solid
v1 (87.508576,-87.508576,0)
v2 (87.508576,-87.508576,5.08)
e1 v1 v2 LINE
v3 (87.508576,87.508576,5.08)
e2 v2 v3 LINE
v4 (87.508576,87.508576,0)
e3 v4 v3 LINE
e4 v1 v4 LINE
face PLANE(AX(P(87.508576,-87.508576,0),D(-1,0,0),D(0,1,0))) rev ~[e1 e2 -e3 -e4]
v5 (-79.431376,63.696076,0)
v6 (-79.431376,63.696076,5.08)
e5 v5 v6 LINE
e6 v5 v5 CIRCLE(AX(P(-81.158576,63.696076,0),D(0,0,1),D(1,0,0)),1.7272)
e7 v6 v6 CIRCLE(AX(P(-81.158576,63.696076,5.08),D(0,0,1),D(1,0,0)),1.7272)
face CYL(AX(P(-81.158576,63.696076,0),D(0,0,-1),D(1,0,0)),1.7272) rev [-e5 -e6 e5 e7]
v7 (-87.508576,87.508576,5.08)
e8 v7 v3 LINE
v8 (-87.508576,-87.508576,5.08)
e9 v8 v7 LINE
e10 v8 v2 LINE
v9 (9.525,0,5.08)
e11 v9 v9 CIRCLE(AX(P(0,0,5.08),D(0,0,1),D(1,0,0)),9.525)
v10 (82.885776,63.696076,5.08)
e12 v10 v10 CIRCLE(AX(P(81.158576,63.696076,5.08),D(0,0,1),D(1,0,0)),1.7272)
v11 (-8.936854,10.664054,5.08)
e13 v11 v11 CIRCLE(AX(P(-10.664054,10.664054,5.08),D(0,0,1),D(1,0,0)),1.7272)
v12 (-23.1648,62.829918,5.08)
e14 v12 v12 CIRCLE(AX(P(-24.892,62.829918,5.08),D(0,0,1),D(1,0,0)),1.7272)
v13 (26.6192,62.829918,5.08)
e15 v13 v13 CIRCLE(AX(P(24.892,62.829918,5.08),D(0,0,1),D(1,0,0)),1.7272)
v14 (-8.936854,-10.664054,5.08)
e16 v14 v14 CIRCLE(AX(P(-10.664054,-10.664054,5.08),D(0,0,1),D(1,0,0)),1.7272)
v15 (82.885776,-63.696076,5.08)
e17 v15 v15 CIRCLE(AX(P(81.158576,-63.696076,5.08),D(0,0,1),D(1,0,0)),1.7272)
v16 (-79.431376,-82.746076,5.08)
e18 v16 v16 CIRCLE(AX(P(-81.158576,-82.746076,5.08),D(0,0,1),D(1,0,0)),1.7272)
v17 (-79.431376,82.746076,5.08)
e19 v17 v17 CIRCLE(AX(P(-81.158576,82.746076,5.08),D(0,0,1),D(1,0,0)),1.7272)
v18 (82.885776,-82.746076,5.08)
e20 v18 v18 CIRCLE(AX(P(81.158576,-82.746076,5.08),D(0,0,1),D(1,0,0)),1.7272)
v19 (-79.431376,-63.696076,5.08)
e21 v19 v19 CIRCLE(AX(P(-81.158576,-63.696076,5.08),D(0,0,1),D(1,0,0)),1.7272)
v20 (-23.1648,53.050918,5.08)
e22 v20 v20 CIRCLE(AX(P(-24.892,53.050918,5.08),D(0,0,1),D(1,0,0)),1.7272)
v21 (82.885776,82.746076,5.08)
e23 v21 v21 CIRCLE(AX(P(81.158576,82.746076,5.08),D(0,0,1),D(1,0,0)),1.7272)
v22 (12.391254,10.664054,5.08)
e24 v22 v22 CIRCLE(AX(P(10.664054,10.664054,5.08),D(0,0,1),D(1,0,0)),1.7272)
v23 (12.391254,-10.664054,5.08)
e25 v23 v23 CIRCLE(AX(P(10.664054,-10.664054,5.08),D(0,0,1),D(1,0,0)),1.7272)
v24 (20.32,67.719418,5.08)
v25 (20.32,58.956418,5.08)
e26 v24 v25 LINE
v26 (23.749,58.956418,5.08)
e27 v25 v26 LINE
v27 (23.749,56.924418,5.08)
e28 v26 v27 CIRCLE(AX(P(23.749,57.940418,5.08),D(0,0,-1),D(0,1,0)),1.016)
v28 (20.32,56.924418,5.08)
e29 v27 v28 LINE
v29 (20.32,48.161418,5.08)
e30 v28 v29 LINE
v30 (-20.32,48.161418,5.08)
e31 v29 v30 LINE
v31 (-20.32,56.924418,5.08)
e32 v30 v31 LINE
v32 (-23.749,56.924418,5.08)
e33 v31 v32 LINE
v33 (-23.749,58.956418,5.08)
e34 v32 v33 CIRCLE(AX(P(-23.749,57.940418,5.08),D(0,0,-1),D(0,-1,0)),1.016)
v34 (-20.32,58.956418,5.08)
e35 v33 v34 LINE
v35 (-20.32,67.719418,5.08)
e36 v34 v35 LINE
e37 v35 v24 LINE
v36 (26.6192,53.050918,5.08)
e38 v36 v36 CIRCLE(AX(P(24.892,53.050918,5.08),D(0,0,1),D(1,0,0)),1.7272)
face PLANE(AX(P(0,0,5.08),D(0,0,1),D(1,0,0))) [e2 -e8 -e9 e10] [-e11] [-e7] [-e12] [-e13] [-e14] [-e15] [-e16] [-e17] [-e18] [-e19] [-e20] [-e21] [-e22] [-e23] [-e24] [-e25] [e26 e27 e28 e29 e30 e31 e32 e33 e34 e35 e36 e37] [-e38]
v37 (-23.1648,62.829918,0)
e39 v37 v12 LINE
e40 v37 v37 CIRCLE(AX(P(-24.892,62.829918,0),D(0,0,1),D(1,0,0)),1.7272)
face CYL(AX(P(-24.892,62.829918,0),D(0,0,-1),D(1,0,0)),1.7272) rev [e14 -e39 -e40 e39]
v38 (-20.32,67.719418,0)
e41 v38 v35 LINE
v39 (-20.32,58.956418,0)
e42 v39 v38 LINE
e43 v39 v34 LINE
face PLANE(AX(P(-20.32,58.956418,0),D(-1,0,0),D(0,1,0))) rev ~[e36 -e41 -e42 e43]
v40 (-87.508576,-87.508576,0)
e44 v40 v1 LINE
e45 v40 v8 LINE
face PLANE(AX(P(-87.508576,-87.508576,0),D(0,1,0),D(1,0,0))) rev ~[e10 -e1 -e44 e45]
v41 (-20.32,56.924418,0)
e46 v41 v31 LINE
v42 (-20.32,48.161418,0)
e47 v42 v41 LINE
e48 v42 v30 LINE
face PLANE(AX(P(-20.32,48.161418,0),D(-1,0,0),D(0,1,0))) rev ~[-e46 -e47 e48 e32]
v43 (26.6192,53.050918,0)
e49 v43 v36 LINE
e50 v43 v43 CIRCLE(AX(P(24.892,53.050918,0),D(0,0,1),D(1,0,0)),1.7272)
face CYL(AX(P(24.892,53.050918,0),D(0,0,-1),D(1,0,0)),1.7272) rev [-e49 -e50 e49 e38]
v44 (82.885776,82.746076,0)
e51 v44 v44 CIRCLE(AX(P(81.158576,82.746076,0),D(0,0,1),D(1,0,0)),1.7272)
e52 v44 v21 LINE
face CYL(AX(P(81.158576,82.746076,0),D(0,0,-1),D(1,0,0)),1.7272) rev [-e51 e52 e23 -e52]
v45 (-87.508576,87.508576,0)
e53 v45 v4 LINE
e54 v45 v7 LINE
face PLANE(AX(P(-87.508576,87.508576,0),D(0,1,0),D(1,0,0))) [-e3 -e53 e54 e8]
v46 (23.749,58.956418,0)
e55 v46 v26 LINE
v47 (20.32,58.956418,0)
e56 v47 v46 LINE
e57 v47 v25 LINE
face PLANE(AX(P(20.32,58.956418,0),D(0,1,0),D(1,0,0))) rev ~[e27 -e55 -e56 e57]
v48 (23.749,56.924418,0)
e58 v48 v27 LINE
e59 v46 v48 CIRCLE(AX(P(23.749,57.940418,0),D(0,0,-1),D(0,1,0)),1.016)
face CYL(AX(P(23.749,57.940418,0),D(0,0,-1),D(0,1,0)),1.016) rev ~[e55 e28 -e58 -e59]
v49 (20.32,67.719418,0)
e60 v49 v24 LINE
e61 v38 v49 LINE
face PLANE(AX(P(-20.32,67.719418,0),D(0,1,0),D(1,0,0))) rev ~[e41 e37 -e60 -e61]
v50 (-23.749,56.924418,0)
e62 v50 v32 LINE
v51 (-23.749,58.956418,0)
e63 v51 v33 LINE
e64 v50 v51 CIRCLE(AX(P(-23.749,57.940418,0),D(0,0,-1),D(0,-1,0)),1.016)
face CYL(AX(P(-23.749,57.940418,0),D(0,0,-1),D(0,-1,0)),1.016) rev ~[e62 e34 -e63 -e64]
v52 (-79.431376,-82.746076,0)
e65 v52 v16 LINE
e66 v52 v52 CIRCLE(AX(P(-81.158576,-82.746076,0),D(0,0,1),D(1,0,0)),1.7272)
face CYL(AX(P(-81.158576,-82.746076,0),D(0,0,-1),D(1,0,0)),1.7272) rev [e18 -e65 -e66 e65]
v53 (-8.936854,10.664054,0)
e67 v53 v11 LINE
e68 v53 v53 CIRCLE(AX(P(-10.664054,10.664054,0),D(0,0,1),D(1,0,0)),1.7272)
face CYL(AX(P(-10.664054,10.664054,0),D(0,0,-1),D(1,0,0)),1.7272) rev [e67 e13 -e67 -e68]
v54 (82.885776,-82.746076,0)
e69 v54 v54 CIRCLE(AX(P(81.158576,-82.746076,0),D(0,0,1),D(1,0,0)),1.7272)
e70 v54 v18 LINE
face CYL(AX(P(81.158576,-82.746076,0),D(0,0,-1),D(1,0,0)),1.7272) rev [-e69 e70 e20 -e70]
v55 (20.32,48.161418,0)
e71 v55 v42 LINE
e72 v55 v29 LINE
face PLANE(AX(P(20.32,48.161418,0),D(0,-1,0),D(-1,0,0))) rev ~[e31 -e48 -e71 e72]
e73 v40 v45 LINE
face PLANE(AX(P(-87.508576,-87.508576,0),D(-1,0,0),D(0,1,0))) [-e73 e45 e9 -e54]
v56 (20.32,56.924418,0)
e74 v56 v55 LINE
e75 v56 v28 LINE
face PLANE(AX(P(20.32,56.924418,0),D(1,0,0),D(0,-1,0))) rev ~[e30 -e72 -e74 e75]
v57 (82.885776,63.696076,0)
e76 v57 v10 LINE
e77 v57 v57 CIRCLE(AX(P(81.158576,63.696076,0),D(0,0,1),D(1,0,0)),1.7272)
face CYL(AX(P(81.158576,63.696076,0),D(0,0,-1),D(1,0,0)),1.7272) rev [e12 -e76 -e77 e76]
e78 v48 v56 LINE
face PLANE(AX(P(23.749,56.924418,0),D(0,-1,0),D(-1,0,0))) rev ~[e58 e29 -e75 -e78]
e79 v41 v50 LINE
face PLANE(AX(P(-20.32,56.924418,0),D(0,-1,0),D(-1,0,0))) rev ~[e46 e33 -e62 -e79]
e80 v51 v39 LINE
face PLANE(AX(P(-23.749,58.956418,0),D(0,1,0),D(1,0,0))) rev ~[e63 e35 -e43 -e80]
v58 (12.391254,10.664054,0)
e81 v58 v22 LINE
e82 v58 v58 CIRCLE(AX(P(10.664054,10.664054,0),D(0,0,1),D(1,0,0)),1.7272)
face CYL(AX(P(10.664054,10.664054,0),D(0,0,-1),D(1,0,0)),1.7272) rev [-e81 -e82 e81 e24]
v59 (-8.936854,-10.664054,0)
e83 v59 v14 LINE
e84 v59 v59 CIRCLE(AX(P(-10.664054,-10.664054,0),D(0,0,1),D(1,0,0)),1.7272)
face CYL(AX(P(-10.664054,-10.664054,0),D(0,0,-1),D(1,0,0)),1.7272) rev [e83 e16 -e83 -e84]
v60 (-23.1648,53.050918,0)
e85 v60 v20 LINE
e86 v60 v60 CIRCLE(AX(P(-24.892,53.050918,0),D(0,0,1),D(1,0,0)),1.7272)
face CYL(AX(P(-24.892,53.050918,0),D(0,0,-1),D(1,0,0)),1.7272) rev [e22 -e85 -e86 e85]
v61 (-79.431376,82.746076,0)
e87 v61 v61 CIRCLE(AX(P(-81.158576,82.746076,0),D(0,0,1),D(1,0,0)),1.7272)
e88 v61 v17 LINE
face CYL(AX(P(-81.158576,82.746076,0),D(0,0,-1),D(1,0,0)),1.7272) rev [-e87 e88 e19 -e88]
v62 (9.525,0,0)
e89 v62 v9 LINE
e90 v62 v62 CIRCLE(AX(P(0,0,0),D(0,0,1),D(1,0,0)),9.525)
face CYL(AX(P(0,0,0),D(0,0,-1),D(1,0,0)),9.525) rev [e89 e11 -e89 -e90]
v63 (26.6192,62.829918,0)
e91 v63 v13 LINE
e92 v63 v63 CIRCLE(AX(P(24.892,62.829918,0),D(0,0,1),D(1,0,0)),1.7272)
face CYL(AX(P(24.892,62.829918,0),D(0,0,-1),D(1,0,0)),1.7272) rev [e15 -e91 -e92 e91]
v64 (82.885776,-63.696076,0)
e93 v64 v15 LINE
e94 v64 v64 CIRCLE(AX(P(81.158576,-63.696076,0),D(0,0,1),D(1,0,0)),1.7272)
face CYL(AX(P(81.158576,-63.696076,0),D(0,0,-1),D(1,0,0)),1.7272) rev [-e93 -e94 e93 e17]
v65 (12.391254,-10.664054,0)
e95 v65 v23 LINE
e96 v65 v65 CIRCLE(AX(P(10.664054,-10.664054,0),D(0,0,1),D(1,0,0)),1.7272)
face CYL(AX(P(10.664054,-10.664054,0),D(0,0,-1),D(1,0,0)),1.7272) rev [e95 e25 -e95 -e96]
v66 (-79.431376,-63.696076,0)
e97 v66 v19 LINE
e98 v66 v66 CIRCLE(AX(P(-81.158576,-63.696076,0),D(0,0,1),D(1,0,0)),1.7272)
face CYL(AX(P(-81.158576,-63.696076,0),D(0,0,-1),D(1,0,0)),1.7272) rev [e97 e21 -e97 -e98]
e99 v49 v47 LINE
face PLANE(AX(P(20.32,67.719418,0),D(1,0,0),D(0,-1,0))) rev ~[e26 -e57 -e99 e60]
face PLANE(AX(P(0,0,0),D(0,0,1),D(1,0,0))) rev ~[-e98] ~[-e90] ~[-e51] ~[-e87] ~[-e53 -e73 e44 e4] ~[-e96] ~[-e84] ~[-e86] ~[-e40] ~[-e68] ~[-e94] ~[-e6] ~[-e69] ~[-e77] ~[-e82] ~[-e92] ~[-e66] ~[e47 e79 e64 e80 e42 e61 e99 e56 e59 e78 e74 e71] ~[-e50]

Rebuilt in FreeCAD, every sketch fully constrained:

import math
import FreeCAD as App
import Part
import Sketcher
from FreeCAD import Vector
Q = App.Units.Quantity


def add_polygon(sketch, points):
    """Adds a closed chain of lines whose ends are joined by coincident constraints."""
    first, n = sketch.GeometryCount, len(points)
    for a, b in zip(points, points[1:] + points[:1]):
        sketch.addGeometry(Part.LineSegment(App.Vector(*a, 0), App.Vector(*b, 0)), False)
    for i in range(n):
        sketch.addConstraint(Sketcher.Constraint("Coincident", first + i, 2, first + (i + 1) % n, 1))

doc = App.newDocument("Part")
body = doc.addObject("PartDesign::Body", "Body")

# Sketch on XY plane
sketch1 = body.newObject("Sketcher::SketchObject", "Sketch")
sketch1.AttachmentSupport = (doc.getObject("XY_Plane"), [""])
sketch1.MapMode = "FlatFace"
add_polygon(sketch1, [(-87.5, 87.5), (-87.5, -87.5), (87.5, -87.5), (87.5, 87.5)])  # lines 0-3
sketch1.addGeometry(Part.Circle(Vector(-81.2, -82.7, 0), Vector(0, 0, 1), 1.7), False)  # 4
sketch1.addGeometry(Part.Circle(Vector(-81.2, -63.7, 0), Vector(0, 0, 1), 1.7), False)  # 5
sketch1.addGeometry(Part.Circle(Vector(-10.7, -10.7, 0), Vector(0, 0, 1), 1.7), False)  # 6
sketch1.addGeometry(Part.Circle(Vector(81.2, -82.7, 0), Vector(0, 0, 1), 1.7), False)  # 7
sketch1.addGeometry(Part.Circle(Vector(81.2, -63.7, 0), Vector(0, 0, 1), 1.7), False)  # 8
sketch1.addGeometry(Part.Circle(Vector(10.7, -10.7, 0), Vector(0, 0, 1), 1.7), False)  # 9
sketch1.addGeometry(Part.Circle(Vector(0, 0, 0), Vector(0, 0, 1), 9.5), False)  # 10
sketch1.addGeometry(Part.Circle(Vector(-10.7, 10.7, 0), Vector(0, 0, 1), 1.7), False)  # 11
sketch1.addGeometry(Part.Circle(Vector(-81.2, 63.7, 0), Vector(0, 0, 1), 1.7), False)  # 12
sketch1.addGeometry(Part.Circle(Vector(-81.2, 82.7, 0), Vector(0, 0, 1), 1.7), False)  # 13
sketch1.addGeometry(Part.Circle(Vector(-24.9, 53.1, 0), Vector(0, 0, 1), 1.7), False)  # 14
sketch1.addGeometry(Part.Circle(Vector(-24.9, 62.8, 0), Vector(0, 0, 1), 1.7), False)  # 15
sketch1.addGeometry(Part.Circle(Vector(10.7, 10.7, 0), Vector(0, 0, 1), 1.7), False)  # 16
sketch1.addGeometry(Part.LineSegment(Vector(-23.7, 59, 0), Vector(-20.3, 59, 0)), False)  # 17
sketch1.addGeometry(Part.LineSegment(Vector(-20.3, 59, 0), Vector(-20.3, 67.7, 0)), False)  # 18
sketch1.addGeometry(Part.LineSegment(Vector(-20.3, 67.7, 0), Vector(20.3, 67.7, 0)), False)  # 19
sketch1.addGeometry(Part.LineSegment(Vector(20.3, 67.7, 0), Vector(20.3, 59, 0)), False)  # 20
sketch1.addGeometry(Part.LineSegment(Vector(20.3, 59, 0), Vector(23.7, 59, 0)), False)  # 21
sketch1.addGeometry(Part.ArcOfCircle(Part.Circle(Vector(23.7, 57.9, 0), Vector(0, 0, 1), 1), math.radians(-90), math.radians(90)), False)  # 22
sketch1.addGeometry(Part.LineSegment(Vector(23.7, 56.9, 0), Vector(20.3, 56.9, 0)), False)  # 23
sketch1.addGeometry(Part.LineSegment(Vector(20.3, 56.9, 0), Vector(20.3, 48.2, 0)), False)  # 24
sketch1.addGeometry(Part.LineSegment(Vector(20.3, 48.2, 0), Vector(-20.3, 48.2, 0)), False)  # 25
sketch1.addGeometry(Part.LineSegment(Vector(-20.3, 48.2, 0), Vector(-20.3, 56.9, 0)), False)  # 26
sketch1.addGeometry(Part.LineSegment(Vector(-20.3, 56.9, 0), Vector(-23.7, 56.9, 0)), False)  # 27
sketch1.addGeometry(Part.ArcOfCircle(Part.Circle(Vector(-23.7, 57.9, 0), Vector(0, 0, 1), 1), math.radians(90), math.radians(270)), False)  # 28
sketch1.addGeometry(Part.Circle(Vector(24.9, 53.1, 0), Vector(0, 0, 1), 1.7), False)  # 29
sketch1.addGeometry(Part.Circle(Vector(24.9, 62.8, 0), Vector(0, 0, 1), 1.7), False)  # 30
sketch1.addGeometry(Part.Circle(Vector(81.2, 63.7, 0), Vector(0, 0, 1), 1.7), False)  # 31
sketch1.addGeometry(Part.Circle(Vector(81.2, 82.7, 0), Vector(0, 0, 1), 1.7), False)  # 32
sketch1.addConstraint([
    Sketcher.Constraint("Coincident", 17, 2, 18, 1),
    Sketcher.Constraint("Coincident", 18, 2, 19, 1),
    Sketcher.Constraint("Coincident", 19, 2, 20, 1),
    Sketcher.Constraint("Coincident", 20, 2, 21, 1),
    Sketcher.Constraint("Tangent", 21, 2, 22, 2),
    Sketcher.Constraint("Tangent", 22, 1, 23, 1),
    Sketcher.Constraint("Coincident", 23, 2, 24, 1),
    Sketcher.Constraint("Coincident", 24, 2, 25, 1),
    Sketcher.Constraint("Coincident", 25, 2, 26, 1),
    Sketcher.Constraint("Coincident", 26, 2, 27, 1),
    Sketcher.Constraint("Tangent", 27, 2, 28, 2),
    Sketcher.Constraint("Tangent", 28, 1, 17, 1),
    Sketcher.Constraint("Vertical", 0),
    Sketcher.Constraint("Horizontal", 1),
    Sketcher.Constraint("Vertical", 2),
    Sketcher.Constraint("Horizontal", 3),
    Sketcher.Constraint("Horizontal", 17),
    Sketcher.Constraint("Vertical", 18),
    Sketcher.Constraint("Horizontal", 19),
    Sketcher.Constraint("Vertical", 20),
    Sketcher.Constraint("Horizontal", 21),
    Sketcher.Constraint("Horizontal", 23),
    Sketcher.Constraint("Vertical", 24),
    Sketcher.Constraint("Horizontal", 25),
    Sketcher.Constraint("Vertical", 26),
    Sketcher.Constraint("Horizontal", 27),
    Sketcher.Constraint("Coincident", 10, 3, -1, 1),
    Sketcher.Constraint("Equal", 4, 5),
    Sketcher.Constraint("Equal", 5, 6),
    Sketcher.Constraint("Equal", 6, 7),
    Sketcher.Constraint("Equal", 7, 8),
    Sketcher.Constraint("Equal", 8, 9),
    Sketcher.Constraint("Equal", 9, 11),
    Sketcher.Constraint("Equal", 11, 12),
    Sketcher.Constraint("Equal", 12, 13),
    Sketcher.Constraint("Equal", 13, 14),
    Sketcher.Constraint("Equal", 14, 15),
    Sketcher.Constraint("Equal", 15, 16),
    Sketcher.Constraint("Equal", 22, 28),
    Sketcher.Constraint("Equal", 16, 29),
    Sketcher.Constraint("Equal", 29, 30),
    Sketcher.Constraint("Equal", 30, 31),
    Sketcher.Constraint("Equal", 31, 32),
    Sketcher.Constraint("Symmetric", 9, 3, 11, 3, -1, 1),
    Sketcher.Constraint("Symmetric", 8, 3, 12, 3, -1, 1),
    Sketcher.Constraint("Symmetric", 7, 3, 13, 3, -1, 1),
    Sketcher.Constraint("Symmetric", 6, 3, 16, 3, -1, 1),
    Sketcher.Constraint("Symmetric", 5, 3, 31, 3, -1, 1),
    Sketcher.Constraint("Symmetric", 4, 3, 32, 3, -1, 1),
    Sketcher.Constraint("Symmetric", 0, 2, 2, 2, -1, 1),
    Sketcher.Constraint("Symmetric", 4, 3, 7, 3, -2),
    Sketcher.Constraint("Symmetric", 5, 3, 8, 3, -2),
    Sketcher.Constraint("Symmetric", 6, 3, 9, 3, -2),
    Sketcher.Constraint("Symmetric", 22, 3, 28, 3, -2),
    Sketcher.Constraint("Symmetric", 14, 3, 29, 3, -2),
    Sketcher.Constraint("Symmetric", 15, 3, 30, 3, -2),
    Sketcher.Constraint("Vertical", 4, 3, 5, 3),
    Sketcher.Constraint("Vertical", 14, 3, 15, 3),
    Sketcher.Constraint("Vertical", 20, 2, 23, 2),
    Sketcher.Constraint("Vertical", 18, 2, 25, 2),
    Sketcher.Constraint("Equal", 17, 21),
    Sketcher.Constraint("Equal", 3, 0),
    Sketcher.Constraint("Equal", 20, 24),
    Sketcher.Constraint("Diameter", 10, Q("0.75 in")),
    Sketcher.Constraint("Radius", 22, Q("0.04 in")),
    Sketcher.Constraint("Diameter", 4, Q("0.136 in")),
    Sketcher.Constraint("DistanceX", 19, 1, 19, 2, Q("1.6 in")),
    Sketcher.Constraint("DistanceX", 17, 1, 17, 2, Q("0.135 in")),
    Sketcher.Constraint("DistanceY", 18, 1, 18, 2, Q("0.345 in")),
    Sketcher.Constraint("DistanceX", 14, 3, -1, 1, Q("0.98 in")),
    Sketcher.Constraint("DistanceY", 4, 3, 5, 3, Q("0.75 in")),
    Sketcher.Constraint("DistanceX", 0, 2, 4, 3, Q("0.25 in")),
    Sketcher.Constraint("DistanceY", 14, 3, 15, 3, Q("0.385 in")),
    Sketcher.Constraint("DistanceY", 0, 2, 4, 3, Q("0.1875 in")),
    Sketcher.Constraint("DistanceY", 14, 3, 22, 3, Q("0.1925 in")),
    Sketcher.Constraint("DistanceX", 1, 1, 1, 2, 175.017152),
    Sketcher.Constraint("DistanceY", -1, 1, 14, 3, 53.050918),
    Sketcher.Constraint("DistanceX", 5, 3, 6, 3, 70.494522),
    Sketcher.Constraint("DistanceY", 5, 3, 6, 3, 53.032022),
])
pad1 = body.newObject("PartDesign::Pad", "Pad")
pad1.Profile = sketch1
pad1.Length = Q("0.2 in")

doc.recompute()
